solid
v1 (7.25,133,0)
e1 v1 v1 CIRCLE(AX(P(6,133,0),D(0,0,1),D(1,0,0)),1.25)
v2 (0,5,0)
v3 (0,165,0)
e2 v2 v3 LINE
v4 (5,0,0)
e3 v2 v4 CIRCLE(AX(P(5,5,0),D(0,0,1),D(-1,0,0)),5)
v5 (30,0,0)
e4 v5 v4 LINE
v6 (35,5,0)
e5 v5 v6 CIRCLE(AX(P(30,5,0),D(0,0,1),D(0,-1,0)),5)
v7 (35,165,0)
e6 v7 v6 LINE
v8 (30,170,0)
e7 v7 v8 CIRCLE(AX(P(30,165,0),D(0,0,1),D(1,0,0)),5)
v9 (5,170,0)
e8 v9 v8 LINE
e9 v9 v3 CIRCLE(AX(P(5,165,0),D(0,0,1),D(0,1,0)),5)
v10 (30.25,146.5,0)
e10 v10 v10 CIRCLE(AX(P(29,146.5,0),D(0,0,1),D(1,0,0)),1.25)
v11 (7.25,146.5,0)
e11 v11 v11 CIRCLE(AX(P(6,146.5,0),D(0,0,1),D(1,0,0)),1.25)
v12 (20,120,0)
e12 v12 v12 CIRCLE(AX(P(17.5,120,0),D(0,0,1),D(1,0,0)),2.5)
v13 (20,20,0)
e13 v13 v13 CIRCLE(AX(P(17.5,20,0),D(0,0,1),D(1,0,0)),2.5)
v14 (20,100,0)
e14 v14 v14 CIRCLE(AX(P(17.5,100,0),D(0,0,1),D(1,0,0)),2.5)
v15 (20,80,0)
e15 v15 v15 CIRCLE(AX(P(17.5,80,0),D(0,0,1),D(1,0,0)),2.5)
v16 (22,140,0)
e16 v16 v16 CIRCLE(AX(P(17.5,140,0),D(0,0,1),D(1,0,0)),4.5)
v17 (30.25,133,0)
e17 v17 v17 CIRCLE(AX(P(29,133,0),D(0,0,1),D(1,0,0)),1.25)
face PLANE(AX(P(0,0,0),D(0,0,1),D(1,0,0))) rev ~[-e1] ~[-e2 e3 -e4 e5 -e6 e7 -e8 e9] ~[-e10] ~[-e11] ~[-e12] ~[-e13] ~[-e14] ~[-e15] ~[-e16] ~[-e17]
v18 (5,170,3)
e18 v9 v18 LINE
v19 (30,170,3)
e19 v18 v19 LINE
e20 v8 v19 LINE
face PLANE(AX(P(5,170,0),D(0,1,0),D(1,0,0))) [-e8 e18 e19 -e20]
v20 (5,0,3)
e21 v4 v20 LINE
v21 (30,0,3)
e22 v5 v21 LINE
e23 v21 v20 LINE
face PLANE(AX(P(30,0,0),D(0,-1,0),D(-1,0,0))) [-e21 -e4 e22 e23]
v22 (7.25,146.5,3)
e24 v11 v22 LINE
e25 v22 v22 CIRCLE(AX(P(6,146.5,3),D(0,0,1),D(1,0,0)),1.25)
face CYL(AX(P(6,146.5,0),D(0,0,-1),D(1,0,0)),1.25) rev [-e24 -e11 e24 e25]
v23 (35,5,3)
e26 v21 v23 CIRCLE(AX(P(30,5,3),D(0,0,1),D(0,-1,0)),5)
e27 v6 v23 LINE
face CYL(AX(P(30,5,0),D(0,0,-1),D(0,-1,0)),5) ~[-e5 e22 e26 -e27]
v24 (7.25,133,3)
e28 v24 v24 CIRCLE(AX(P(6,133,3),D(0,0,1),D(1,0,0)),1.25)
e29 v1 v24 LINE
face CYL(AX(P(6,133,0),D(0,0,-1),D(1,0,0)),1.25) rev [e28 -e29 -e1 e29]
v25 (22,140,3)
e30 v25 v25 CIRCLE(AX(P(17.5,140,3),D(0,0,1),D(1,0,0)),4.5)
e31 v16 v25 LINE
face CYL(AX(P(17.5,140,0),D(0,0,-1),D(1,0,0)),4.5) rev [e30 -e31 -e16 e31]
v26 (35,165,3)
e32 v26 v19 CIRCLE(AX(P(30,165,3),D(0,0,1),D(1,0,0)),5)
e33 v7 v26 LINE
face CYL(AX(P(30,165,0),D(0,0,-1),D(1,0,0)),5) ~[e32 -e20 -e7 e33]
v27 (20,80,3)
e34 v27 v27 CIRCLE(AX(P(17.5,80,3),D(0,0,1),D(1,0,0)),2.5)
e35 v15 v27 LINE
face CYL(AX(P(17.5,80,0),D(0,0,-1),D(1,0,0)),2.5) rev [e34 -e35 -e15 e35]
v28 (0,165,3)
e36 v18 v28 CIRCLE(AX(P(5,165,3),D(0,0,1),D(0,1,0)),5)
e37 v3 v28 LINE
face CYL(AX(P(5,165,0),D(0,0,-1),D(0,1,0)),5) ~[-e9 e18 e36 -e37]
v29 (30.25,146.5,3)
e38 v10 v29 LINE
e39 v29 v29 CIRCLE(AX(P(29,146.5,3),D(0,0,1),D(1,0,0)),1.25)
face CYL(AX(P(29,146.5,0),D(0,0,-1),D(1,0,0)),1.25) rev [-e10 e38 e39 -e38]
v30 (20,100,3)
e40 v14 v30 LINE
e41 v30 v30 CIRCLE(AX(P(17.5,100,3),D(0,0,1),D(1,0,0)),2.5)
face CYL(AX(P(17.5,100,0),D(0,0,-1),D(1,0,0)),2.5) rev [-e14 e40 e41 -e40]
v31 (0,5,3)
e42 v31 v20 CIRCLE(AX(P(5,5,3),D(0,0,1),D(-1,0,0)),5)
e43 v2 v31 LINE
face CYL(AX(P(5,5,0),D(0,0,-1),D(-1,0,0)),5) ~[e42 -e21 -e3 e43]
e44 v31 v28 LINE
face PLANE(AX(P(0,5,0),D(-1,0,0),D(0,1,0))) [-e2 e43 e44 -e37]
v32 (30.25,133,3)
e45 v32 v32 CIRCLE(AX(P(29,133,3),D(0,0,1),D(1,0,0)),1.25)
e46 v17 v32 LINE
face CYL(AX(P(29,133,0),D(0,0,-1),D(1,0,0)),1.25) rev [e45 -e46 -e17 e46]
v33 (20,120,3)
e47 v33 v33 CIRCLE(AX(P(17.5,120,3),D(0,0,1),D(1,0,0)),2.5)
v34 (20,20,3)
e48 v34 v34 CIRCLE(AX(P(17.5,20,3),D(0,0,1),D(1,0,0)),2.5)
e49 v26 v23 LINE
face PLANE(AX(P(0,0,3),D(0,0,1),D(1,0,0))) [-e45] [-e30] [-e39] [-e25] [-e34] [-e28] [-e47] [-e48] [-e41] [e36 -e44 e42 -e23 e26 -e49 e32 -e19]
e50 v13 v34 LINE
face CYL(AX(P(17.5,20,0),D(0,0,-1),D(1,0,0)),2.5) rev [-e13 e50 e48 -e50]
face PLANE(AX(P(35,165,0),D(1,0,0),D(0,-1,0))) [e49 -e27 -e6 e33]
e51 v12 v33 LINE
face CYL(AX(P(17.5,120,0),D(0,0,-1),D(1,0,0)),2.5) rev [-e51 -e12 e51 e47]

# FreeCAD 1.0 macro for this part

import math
import FreeCAD as App
import Part
import Sketcher
from FreeCAD import Vector
Q = App.Units.Quantity

doc = App.newDocument("Part")
body = doc.addObject("PartDesign::Body", "Body")

# Sketch on XY plane
sketch1 = doc.addObject("Sketcher::SketchObject", "Sketch")
body.addObject(sketch1)
sketch1.AttachmentSupport = (doc.XY_Plane, [""])
sketch1.MapMode = "FlatFace"
sketch1.addGeometry(Part.LineSegment(Vector(0, 165, 0), Vector(0, 5, 0)), False)
sketch1.addGeometry(Part.ArcOfCircle(Part.Circle(Vector(5, 5, 0), Vector(0, 0, 1), 5), math.radians(180), math.radians(270)), False)
sketch1.addGeometry(Part.LineSegment(Vector(5, 0, 0), Vector(30, 0, 0)), False)
sketch1.addGeometry(Part.ArcOfCircle(Part.Circle(Vector(30, 5, 0), Vector(0, 0, 1), 5), math.radians(-90), math.radians(0)), False)
sketch1.addGeometry(Part.LineSegment(Vector(35, 5, 0), Vector(35, 165, 0)), False)
sketch1.addGeometry(Part.ArcOfCircle(Part.Circle(Vector(30, 165, 0), Vector(0, 0, 1), 5), math.radians(0), math.radians(90)), False)
sketch1.addGeometry(Part.LineSegment(Vector(30, 170, 0), Vector(5, 170, 0)), False)
sketch1.addGeometry(Part.ArcOfCircle(Part.Circle(Vector(5, 165, 0), Vector(0, 0, 1), 5), math.radians(90), math.radians(180)), False)
sketch1.addGeometry(Part.Circle(Vector(17.5, 20, 0), Vector(0, 0, 1), 2.5), False)
sketch1.addGeometry(Part.Circle(Vector(17.5, 80, 0), Vector(0, 0, 1), 2.5), False)
sketch1.addGeometry(Part.Circle(Vector(6, 133, 0), Vector(0, 0, 1), 1.25), False)
sketch1.addGeometry(Part.Circle(Vector(6, 146.5, 0), Vector(0, 0, 1), 1.25), False)
sketch1.addGeometry(Part.Circle(Vector(17.5, 100, 0), Vector(0, 0, 1), 2.5), False)
sketch1.addGeometry(Part.Circle(Vector(17.5, 120, 0), Vector(0, 0, 1), 2.5), False)
sketch1.addGeometry(Part.Circle(Vector(17.5, 140, 0), Vector(0, 0, 1), 4.5), False)
sketch1.addGeometry(Part.Circle(Vector(29, 133, 0), Vector(0, 0, 1), 1.25), False)
sketch1.addGeometry(Part.Circle(Vector(29, 146.5, 0), Vector(0, 0, 1), 1.25), False)
sketch1.addConstraint(Sketcher.Constraint("Tangent", 0, 2, 1, 1))
sketch1.addConstraint(Sketcher.Constraint("Tangent", 1, 2, 2, 1))
sketch1.addConstraint(Sketcher.Constraint("Tangent", 2, 2, 3, 1))
sketch1.addConstraint(Sketcher.Constraint("Tangent", 3, 2, 4, 1))
sketch1.addConstraint(Sketcher.Constraint("Tangent", 4, 2, 5, 1))
sketch1.addConstraint(Sketcher.Constraint("Tangent", 5, 2, 6, 1))
sketch1.addConstraint(Sketcher.Constraint("Tangent", 6, 2, 7, 1))
sketch1.addConstraint(Sketcher.Constraint("Tangent", 7, 2, 0, 1))
sketch1.addConstraint(Sketcher.Constraint("Vertical", 0))
sketch1.addConstraint(Sketcher.Constraint("Horizontal", 2))
sketch1.addConstraint(Sketcher.Constraint("Vertical", 4))
sketch1.addConstraint(Sketcher.Constraint("Horizontal", 6))
sketch1.addConstraint(Sketcher.Constraint("Equal", 1, 3))
sketch1.addConstraint(Sketcher.Constraint("Equal", 3, 5))
sketch1.addConstraint(Sketcher.Constraint("Equal", 5, 7))
sketch1.addConstraint(Sketcher.Constraint("Equal", 8, 9))
sketch1.addConstraint(Sketcher.Constraint("Equal", 10, 11))
sketch1.addConstraint(Sketcher.Constraint("Equal", 9, 12))
sketch1.addConstraint(Sketcher.Constraint("Equal", 12, 13))
sketch1.addConstraint(Sketcher.Constraint("Equal", 11, 15))
sketch1.addConstraint(Sketcher.Constraint("Equal", 15, 16))
sketch1.addConstraint(Sketcher.Constraint("PointOnObject", 0, 2, -2))
sketch1.addConstraint(Sketcher.Constraint("PointOnObject", 1, 2, -1))
sketch1.addConstraint(Sketcher.Constraint("Horizontal", 10, 3, 15, 3))
sketch1.addConstraint(Sketcher.Constraint("Horizontal", 11, 3, 16, 3))
sketch1.addConstraint(Sketcher.Constraint("Vertical", 8, 3, 9, 3))
sketch1.addConstraint(Sketcher.Constraint("Vertical", 10, 3, 11, 3))
sketch1.addConstraint(Sketcher.Constraint("Vertical", 9, 3, 12, 3))
sketch1.addConstraint(Sketcher.Constraint("Vertical", 12, 3, 13, 3))
sketch1.addConstraint(Sketcher.Constraint("Vertical", 13, 3, 14, 3))
sketch1.addConstraint(Sketcher.Constraint("Vertical", 15, 3, 16, 3))
sketch1.addConstraint(Sketcher.Constraint("Diameter", 8, Q("5 mm")))
sketch1.addConstraint(Sketcher.Constraint("Diameter", 14, Q("9 mm")))
sketch1.addConstraint(Sketcher.Constraint("Radius", 1, Q("5 mm")))
sketch1.addConstraint(Sketcher.Constraint("Diameter", 10, Q("2.5 mm")))
sketch1.addConstraint(Sketcher.Constraint("DistanceX", 2, 1, 2, 2, Q("25 mm")))
sketch1.addConstraint(Sketcher.Constraint("DistanceY", 0, 2, 0, 1, Q("160 mm")))
sketch1.addConstraint(Sketcher.Constraint("DistanceY", -1, 1, 8, 3, Q("20 mm")))
sketch1.addConstraint(Sketcher.Constraint("DistanceY", -1, 1, 9, 3, Q("80 mm")))
sketch1.addConstraint(Sketcher.Constraint("DistanceX", -1, 1, 10, 3, Q("6 mm")))
sketch1.addConstraint(Sketcher.Constraint("DistanceY", -1, 1, 10, 3, Q("133 mm")))
sketch1.addConstraint(Sketcher.Constraint("DistanceY", -1, 1, 12, 3, Q("100 mm")))
sketch1.addConstraint(Sketcher.Constraint("DistanceY", -1, 1, 13, 3, Q("120 mm")))
sketch1.addConstraint(Sketcher.Constraint("DistanceY", -1, 1, 14, 3, Q("140 mm")))
sketch1.addConstraint(Sketcher.Constraint("DistanceX", -1, 1, 15, 3, Q("29 mm")))
sketch1.addConstraint(Sketcher.Constraint("DistanceX", -1, 1, 8, 3, Q("17.5 mm")))
sketch1.addConstraint(Sketcher.Constraint("DistanceY", -1, 1, 11, 3, Q("146.5 mm")))
pad1 = doc.addObject("PartDesign::Pad", "Pad")
body.addObject(pad1)
pad1.Profile = sketch1
pad1.Length = 3

doc.recompute()
